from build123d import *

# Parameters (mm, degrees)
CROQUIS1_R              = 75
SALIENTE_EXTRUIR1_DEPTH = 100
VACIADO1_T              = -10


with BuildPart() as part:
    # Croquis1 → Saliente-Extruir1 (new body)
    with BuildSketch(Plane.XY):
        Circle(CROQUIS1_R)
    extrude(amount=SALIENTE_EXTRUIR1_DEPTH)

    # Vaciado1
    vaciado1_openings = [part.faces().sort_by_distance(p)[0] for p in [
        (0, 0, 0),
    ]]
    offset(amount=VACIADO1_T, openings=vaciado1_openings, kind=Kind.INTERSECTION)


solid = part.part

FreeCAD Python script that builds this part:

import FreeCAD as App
import Part
import Sketcher
from FreeCAD import Vector


def faces_at(feature, points):
    """Names of the faces that lie closest to the given points."""
    faces = feature.Shape.Faces
    near = lambda p: min(range(len(faces)), key=lambda i: faces[i].distToShape(Part.Vertex(*p))[0])
    return sorted({f"Face{near(p) + 1}" for p in points})

doc = App.newDocument("Part")
body = doc.addObject("PartDesign::Body", "Body")

# Sketch on XY plane
sketch1 = body.newObject("Sketcher::SketchObject", "Sketch")
sketch1.AttachmentSupport = (doc.getObject("XY_Plane"), [""])
sketch1.MapMode = "FlatFace"
sketch1.addGeometry(Part.Circle(Vector(0, 0, 0), Vector(0, 0, 1), 75), False)
sketch1.addConstraint(Sketcher.Constraint("Coincident", 0, 3, -1, 1))
sketch1.addConstraint(Sketcher.Constraint("Diameter", 0, 150.0))
pad1 = body.newObject("PartDesign::Pad", "Pad")
pad1.Profile = sketch1
pad1.Length = 100
doc.recompute()

thickness = body.newObject("PartDesign::Thickness", "Thickness")
thickness.Base = (pad1, faces_at(pad1, [(0, 0, 0)]))
thickness.Value = 10
thickness.Reversed = True
thickness.Join = "Intersection"

doc.recompute()
